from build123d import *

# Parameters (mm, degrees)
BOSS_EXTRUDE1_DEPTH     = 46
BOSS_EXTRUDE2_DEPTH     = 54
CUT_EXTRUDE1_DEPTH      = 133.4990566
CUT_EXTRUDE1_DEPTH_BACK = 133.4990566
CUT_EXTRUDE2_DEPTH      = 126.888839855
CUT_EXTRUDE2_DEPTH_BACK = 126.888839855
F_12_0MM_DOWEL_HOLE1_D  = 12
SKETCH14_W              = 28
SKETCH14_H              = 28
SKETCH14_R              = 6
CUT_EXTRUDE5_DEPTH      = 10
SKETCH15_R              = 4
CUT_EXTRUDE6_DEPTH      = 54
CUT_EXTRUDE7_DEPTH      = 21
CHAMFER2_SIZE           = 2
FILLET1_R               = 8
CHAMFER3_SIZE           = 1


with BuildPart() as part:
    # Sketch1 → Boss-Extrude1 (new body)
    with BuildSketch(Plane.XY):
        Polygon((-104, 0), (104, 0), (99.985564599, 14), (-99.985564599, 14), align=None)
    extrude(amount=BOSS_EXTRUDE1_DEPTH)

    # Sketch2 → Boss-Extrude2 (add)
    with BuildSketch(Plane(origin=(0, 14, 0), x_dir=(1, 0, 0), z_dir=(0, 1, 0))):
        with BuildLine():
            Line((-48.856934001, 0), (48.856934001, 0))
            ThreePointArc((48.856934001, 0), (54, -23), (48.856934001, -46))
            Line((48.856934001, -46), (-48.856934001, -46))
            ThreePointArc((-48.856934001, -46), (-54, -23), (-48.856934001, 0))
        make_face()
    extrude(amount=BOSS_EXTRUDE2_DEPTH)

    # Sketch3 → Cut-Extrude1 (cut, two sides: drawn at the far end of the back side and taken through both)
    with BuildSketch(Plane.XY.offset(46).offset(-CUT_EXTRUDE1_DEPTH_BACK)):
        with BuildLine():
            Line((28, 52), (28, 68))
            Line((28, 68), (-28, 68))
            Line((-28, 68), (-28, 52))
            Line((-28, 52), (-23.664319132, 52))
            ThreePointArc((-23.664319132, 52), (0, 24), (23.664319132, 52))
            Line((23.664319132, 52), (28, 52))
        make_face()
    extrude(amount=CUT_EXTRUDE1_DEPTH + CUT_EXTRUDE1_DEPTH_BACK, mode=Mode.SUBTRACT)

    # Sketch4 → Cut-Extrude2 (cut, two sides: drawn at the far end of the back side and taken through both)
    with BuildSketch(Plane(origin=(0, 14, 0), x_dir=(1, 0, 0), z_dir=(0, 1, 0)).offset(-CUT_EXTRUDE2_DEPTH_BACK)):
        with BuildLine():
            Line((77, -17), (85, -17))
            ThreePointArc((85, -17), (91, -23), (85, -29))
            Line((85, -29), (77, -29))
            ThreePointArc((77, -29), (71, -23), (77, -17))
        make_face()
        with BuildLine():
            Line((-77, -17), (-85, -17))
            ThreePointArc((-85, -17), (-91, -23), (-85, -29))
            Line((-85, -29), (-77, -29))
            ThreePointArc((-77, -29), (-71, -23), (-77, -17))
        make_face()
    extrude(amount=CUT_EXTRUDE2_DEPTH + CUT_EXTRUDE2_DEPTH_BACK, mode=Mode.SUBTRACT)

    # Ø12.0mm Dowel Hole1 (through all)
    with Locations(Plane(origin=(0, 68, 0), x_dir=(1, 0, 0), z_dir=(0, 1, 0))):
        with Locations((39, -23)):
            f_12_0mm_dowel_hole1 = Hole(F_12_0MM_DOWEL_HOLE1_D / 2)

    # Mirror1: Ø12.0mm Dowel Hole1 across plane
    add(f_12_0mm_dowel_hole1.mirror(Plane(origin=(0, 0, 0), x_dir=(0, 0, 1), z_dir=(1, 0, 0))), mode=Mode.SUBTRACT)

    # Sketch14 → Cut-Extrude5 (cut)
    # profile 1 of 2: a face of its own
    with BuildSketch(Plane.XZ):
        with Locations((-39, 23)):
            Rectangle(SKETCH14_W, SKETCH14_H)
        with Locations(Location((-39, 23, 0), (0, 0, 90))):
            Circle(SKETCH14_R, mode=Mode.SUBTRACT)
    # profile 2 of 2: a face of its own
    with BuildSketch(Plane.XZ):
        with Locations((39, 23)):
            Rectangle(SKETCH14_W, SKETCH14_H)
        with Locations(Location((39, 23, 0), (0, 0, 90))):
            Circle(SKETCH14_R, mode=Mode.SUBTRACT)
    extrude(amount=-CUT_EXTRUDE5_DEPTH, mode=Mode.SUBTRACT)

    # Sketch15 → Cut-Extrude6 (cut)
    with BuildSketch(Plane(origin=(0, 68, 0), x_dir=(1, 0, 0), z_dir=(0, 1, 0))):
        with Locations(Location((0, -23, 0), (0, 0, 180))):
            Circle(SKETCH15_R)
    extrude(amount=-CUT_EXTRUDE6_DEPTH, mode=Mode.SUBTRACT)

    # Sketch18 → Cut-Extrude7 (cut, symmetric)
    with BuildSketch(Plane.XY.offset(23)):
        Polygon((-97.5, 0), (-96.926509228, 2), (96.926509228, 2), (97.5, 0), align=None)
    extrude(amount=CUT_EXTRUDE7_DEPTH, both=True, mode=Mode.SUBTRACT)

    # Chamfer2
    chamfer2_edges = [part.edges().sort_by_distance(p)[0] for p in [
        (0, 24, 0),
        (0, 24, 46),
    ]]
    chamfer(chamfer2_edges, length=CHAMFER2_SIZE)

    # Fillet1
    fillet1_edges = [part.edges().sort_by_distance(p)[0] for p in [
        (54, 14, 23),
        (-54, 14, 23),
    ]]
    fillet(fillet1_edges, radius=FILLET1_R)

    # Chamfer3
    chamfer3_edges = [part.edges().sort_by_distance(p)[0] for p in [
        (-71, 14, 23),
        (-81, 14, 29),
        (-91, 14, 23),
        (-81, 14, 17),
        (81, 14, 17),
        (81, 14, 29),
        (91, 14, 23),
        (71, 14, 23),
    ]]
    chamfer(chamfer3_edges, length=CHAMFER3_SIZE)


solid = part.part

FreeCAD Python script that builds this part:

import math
import FreeCAD as App
import Part
import Sketcher
from FreeCAD import Vector
Q = App.Units.Quantity


def edges_at(feature, points):
    """Names of the edges that pass closest to the given points."""
    edges = feature.Shape.Edges
    near = lambda p: min(range(len(edges)), key=lambda i: edges[i].distToShape(Part.Vertex(*p))[0])
    return sorted({f"Edge{near(p) + 1}" for p in points})


def add_polygon(sketch, points):
    """Adds a closed chain of lines whose ends are joined by coincident constraints."""
    first, n = sketch.GeometryCount, len(points)
    for a, b in zip(points, points[1:] + points[:1]):
        sketch.addGeometry(Part.LineSegment(App.Vector(*a, 0), App.Vector(*b, 0)), False)
    for i in range(n):
        sketch.addConstraint(Sketcher.Constraint("Coincident", first + i, 2, first + (i + 1) % n, 1))

doc = App.newDocument("Part")
body = doc.addObject("PartDesign::Body", "Body")

# Sketch on XY plane
sketch1 = body.newObject("Sketcher::SketchObject", "Sketch")
sketch1.AttachmentSupport = (doc.getObject("XY_Plane"), [""])
sketch1.MapMode = "FlatFace"
add_polygon(sketch1, [(-104, 0), (104, 0), (100, 14), (-100, 14)])  # lines 0-3
sketch1.addConstraint([
    Sketcher.Constraint("Horizontal", 0),
    Sketcher.Constraint("Horizontal", 2),
    Sketcher.Constraint("Symmetric", 0, 2, 3, 2, -1, 1),
    Sketcher.Constraint("Equal", 1, 3),
    Sketcher.Constraint("DistanceX", 0, 1, 0, 2, Q("208 mm")),
    Sketcher.Constraint("Angle", 1, Q("106 deg")),
    Sketcher.Constraint("DistanceY", -1, 1, 1, 2, Q("14 mm")),
])
pad1 = body.newObject("PartDesign::Pad", "Pad")
pad1.Profile = sketch1
pad1.Length = 46

# Sketch on XZ plane
sketch2 = body.newObject("Sketcher::SketchObject", "Sketch001")
sketch2.AttachmentSupport = (doc.getObject("XZ_Plane"), [""])
sketch2.MapMode = "FlatFace"
sketch2.AttachmentOffset = App.Placement(Vector(0, 0, -14), App.Rotation())
sketch2.addGeometry([
    Part.LineSegment(Vector(49, 0, 0), Vector(-49, 0, 0)),
    Part.ArcOfCircle(Part.Circle(Vector(0, 23, 0), Vector(0, 0, 1), 54), math.radians(155), math.radians(205)),
    Part.LineSegment(Vector(-49, 46, 0), Vector(49, 46, 0)),
    Part.ArcOfCircle(Part.Circle(Vector(0, 23, 0), Vector(0, 0, 1), 54), math.radians(-25), math.radians(25)),
], False)
sketch2.addConstraint([
    Sketcher.Constraint("Coincident", 0, 2, 1, 2),
    Sketcher.Constraint("Coincident", 1, 1, 2, 1),
    Sketcher.Constraint("Coincident", 2, 2, 3, 2),
    Sketcher.Constraint("Coincident", 3, 1, 0, 1),
    Sketcher.Constraint("Horizontal", 0),
    Sketcher.Constraint("Horizontal", 2),
    Sketcher.Constraint("Coincident", 3, 3, 1, 3),
    Sketcher.Constraint("Equal", 1, 3),
    Sketcher.Constraint("Symmetric", 0, 2, 3, 1, -1, 1),
    Sketcher.Constraint("Vertical", 0, 2, 1, 1),
    Sketcher.Constraint("Radius", 1, Q("54 mm")),
    Sketcher.Constraint("DistanceY", -1, 1, 1, 3, Q("23 mm")),
])
pad2 = body.newObject("PartDesign::Pad", "Pad001")
pad2.Profile = sketch2
pad2.Length = 54
pad2.Reversed = True

# Sketch on XY plane
sketch3 = body.newObject("Sketcher::SketchObject", "Sketch002")
sketch3.AttachmentSupport = (doc.getObject("XY_Plane"), [""])
sketch3.MapMode = "FlatFace"
sketch3.AttachmentOffset = App.Placement(Vector(0, 0, 46), App.Rotation())
sketch3.addGeometry([
    Part.LineSegment(Vector(28, 52, 0), Vector(28, 68, 0)),  # 0
    Part.LineSegment(Vector(28, 68, 0), Vector(-28, 68, 0)),  # 1
    Part.LineSegment(Vector(-28, 68, 0), Vector(-28, 52, 0)),  # 2
    Part.LineSegment(Vector(-28, 52, 0), Vector(-23.7, 52, 0)),  # 3
    Part.ArcOfCircle(Part.Circle(Vector(0, 48, 0), Vector(0, 0, 1), 24), math.radians(170), math.radians(370)),  # 4
    Part.LineSegment(Vector(23.7, 52, 0), Vector(28, 52, 0)),  # 5
], False)
sketch3.addConstraint([
    Sketcher.Constraint("Coincident", 0, 2, 1, 1),
    Sketcher.Constraint("Coincident", 1, 2, 2, 1),
    Sketcher.Constraint("Coincident", 2, 2, 3, 1),
    Sketcher.Constraint("Coincident", 3, 2, 4, 1),
    Sketcher.Constraint("Coincident", 4, 2, 5, 1),
    Sketcher.Constraint("Coincident", 5, 2, 0, 1),
    Sketcher.Constraint("Vertical", 0),
    Sketcher.Constraint("Horizontal", 1),
    Sketcher.Constraint("Vertical", 2),
    Sketcher.Constraint("Horizontal", 3),
    Sketcher.Constraint("Horizontal", 5),
    Sketcher.Constraint("Symmetric", 3, 2, 4, 2, -2),
    Sketcher.Constraint("Equal", 3, 5),
    Sketcher.Constraint("Radius", 4, Q("24 mm")),
    Sketcher.Constraint("DistanceX", 1, 2, 1, 1, Q("56 mm")),
    Sketcher.Constraint("DistanceY", 0, 1, 0, 2, Q("16 mm")),
    Sketcher.Constraint("DistanceY", -1, 1, 4, 3, Q("48 mm")),
    Sketcher.Constraint("DistanceY", -1, 1, 0, 2, Q("68 mm")),
])
pocket1 = body.newObject("PartDesign::Pocket", "Pocket")
pocket1.Profile = sketch3
pocket1.Type = "ThroughAll"
pocket1.Midplane = True

# Sketch on XZ plane
sketch4 = body.newObject("Sketcher::SketchObject", "Sketch003")
sketch4.AttachmentSupport = (doc.getObject("XZ_Plane"), [""])
sketch4.MapMode = "FlatFace"
sketch4.AttachmentOffset = App.Placement(Vector(0, 0, -14), App.Rotation())
sketch4.addGeometry([
    Part.LineSegment(Vector(85, 17, 0), Vector(77, 17, 0)),  # 0
    Part.ArcOfCircle(Part.Circle(Vector(77, 23, 0), Vector(0, 0, 1), 6), math.radians(90), math.radians(270)),  # 1
    Part.LineSegment(Vector(77, 29, 0), Vector(85, 29, 0)),  # 2
    Part.ArcOfCircle(Part.Circle(Vector(85, 23, 0), Vector(0, 0, 1), 6), math.radians(-90), math.radians(90)),  # 3
    Part.LineSegment(Vector(-77, 17, 0), Vector(-85, 17, 0)),  # 4
    Part.ArcOfCircle(Part.Circle(Vector(-85, 23, 0), Vector(0, 0, 1), 6), math.radians(90), math.radians(270)),  # 5
    Part.LineSegment(Vector(-85, 29, 0), Vector(-77, 29, 0)),  # 6
    Part.ArcOfCircle(Part.Circle(Vector(-77, 23, 0), Vector(0, 0, 1), 6), math.radians(-90), math.radians(90)),  # 7
], False)
sketch4.addConstraint([
    Sketcher.Constraint("Tangent", 0, 2, 1, 2),
    Sketcher.Constraint("Tangent", 1, 1, 2, 1),
    Sketcher.Constraint("Tangent", 2, 2, 3, 2),
    Sketcher.Constraint("Tangent", 3, 1, 0, 1),
    Sketcher.Constraint("Tangent", 4, 2, 5, 2),
    Sketcher.Constraint("Tangent", 5, 1, 6, 1),
    Sketcher.Constraint("Tangent", 6, 2, 7, 2),
    Sketcher.Constraint("Tangent", 7, 1, 4, 1),
    Sketcher.Constraint("Horizontal", 0),
    Sketcher.Constraint("Horizontal", 2),
    Sketcher.Constraint("Horizontal", 4),
    Sketcher.Constraint("Horizontal", 6),
    Sketcher.Constraint("Equal", 3, 5),
    Sketcher.Constraint("Symmetric", 3, 3, 5, 3, -2),
    Sketcher.Constraint("Equal", 2, 4),
    Sketcher.Constraint("Radius", 1, Q("6 mm")),
    Sketcher.Constraint("DistanceX", 0, 2, 0, 1, Q("8 mm")),
    Sketcher.Constraint("DistanceX", -1, 1, 1, 3, Q("77 mm")),
    Sketcher.Constraint("DistanceY", -1, 1, 1, 3, Q("23 mm")),
])
pocket2 = body.newObject("PartDesign::Pocket", "Pocket001")
pocket2.Profile = sketch4
pocket2.Type = "ThroughAll"
pocket2.Midplane = True

# Sketch on XZ plane
sketch5 = body.newObject("Sketcher::SketchObject", "Sketch004")
sketch5.AttachmentSupport = (doc.getObject("XZ_Plane"), [""])
sketch5.MapMode = "FlatFace"
sketch5.AttachmentOffset = App.Placement(Vector(0, 0, -68), App.Rotation())
sketch5.addGeometry(Part.Circle(Vector(39, 23, 0), Vector(0, 0, 1), 6), False)
sketch5.addConstraint([
    Sketcher.Constraint("Diameter", 0, Q("12 mm")),
    Sketcher.Constraint("DistanceX", -1, 1, 0, 3, Q("39 mm")),
    Sketcher.Constraint("DistanceY", -1, 1, 0, 3, Q("23 mm")),
])
doc.recompute()
hole = body.newObject("PartDesign::Hole", "Hole")
hole.Profile = sketch5
hole.ThreadType = "None"
hole.Diameter = 12
hole.DepthType = "ThroughAll"
hole.Reversed = True
doc.recompute()

mirrored = body.newObject("PartDesign::Mirrored", "Mirrored")
mirrored.Originals = [hole]
mirrored.MirrorPlane = (doc.getObject("YZ_Plane"), [""])
body.Tip = mirrored

# Sketch on XZ plane
sketch6 = body.newObject("Sketcher::SketchObject", "Sketch005")
sketch6.AttachmentSupport = (doc.getObject("XZ_Plane"), [""])
sketch6.MapMode = "FlatFace"
add_polygon(sketch6, [(-53, 37), (-53, 9), (-25, 9), (-25, 37)])  # lines 0-3
sketch6.addGeometry(Part.Circle(Vector(-39, 23, 0), Vector(0, 0, 1), 6), False)  # 4
add_polygon(sketch6, [(25, 37), (25, 9), (53, 9), (53, 37)])  # lines 5-8
sketch6.addGeometry(Part.Circle(Vector(39, 23, 0), Vector(0, 0, 1), 6), False)  # 9
sketch6.addConstraint([
    Sketcher.Constraint("Vertical", 0),
    Sketcher.Constraint("Horizontal", 1),
    Sketcher.Constraint("Vertical", 2),
    Sketcher.Constraint("Horizontal", 3),
    Sketcher.Constraint("Vertical", 5),
    Sketcher.Constraint("Horizontal", 6),
    Sketcher.Constraint("Vertical", 7),
    Sketcher.Constraint("Horizontal", 8),
    Sketcher.Constraint("Equal", 4, 9),
    Sketcher.Constraint("Symmetric", 4, 3, 9, 3, -2),
    Sketcher.Constraint("Symmetric", 1, 2, 5, 2, -2),
    Sketcher.Constraint("Symmetric", 3, 2, 7, 2, -2),
    Sketcher.Constraint("Equal", 8, 0),
    Sketcher.Constraint("Diameter", 4, Q("12 mm")),
    Sketcher.Constraint("DistanceX", 1, 1, 1, 2, Q("28 mm")),
    Sketcher.Constraint("DistanceX", 4, 3, -1, 1, Q("39 mm")),
    Sketcher.Constraint("DistanceY", -1, 1, 4, 3, Q("23 mm")),
    Sketcher.Constraint("DistanceX", 0, 2, -1, 1, Q("53 mm")),
    Sketcher.Constraint("DistanceY", -1, 1, 0, 2, Q("9 mm")),
])
pocket3 = body.newObject("PartDesign::Pocket", "Pocket002")
pocket3.Profile = sketch6
pocket3.Length = 10

# Sketch on XZ plane
sketch7 = body.newObject("Sketcher::SketchObject", "Sketch006")
sketch7.AttachmentSupport = (doc.getObject("XZ_Plane"), [""])
sketch7.MapMode = "FlatFace"
sketch7.AttachmentOffset = App.Placement(Vector(0, 0, -68), App.Rotation())
sketch7.addGeometry(Part.Circle(Vector(0, 23, 0), Vector(0, 0, 1), 4), False)
sketch7.addConstraint([
    Sketcher.Constraint("PointOnObject", 0, 3, -2),
    Sketcher.Constraint("Diameter", 0, Q("8 mm")),
    Sketcher.Constraint("DistanceY", -1, 1, 0, 3, Q("23 mm")),
])
pocket4 = body.newObject("PartDesign::Pocket", "Pocket003")
pocket4.Profile = sketch7
pocket4.Length = 54
pocket4.Reversed = True

# Sketch on XY plane
sketch8 = body.newObject("Sketcher::SketchObject", "Sketch007")
sketch8.AttachmentSupport = (doc.getObject("XY_Plane"), [""])
sketch8.MapMode = "FlatFace"
sketch8.AttachmentOffset = App.Placement(Vector(0, 0, 23), App.Rotation())
add_polygon(sketch8, [(-96.9, 2), (-97.5, 0), (97.5, 0), (96.9, 2)])  # lines 0-3
sketch8.addConstraint([
    Sketcher.Constraint("Horizontal", 1),
    Sketcher.Constraint("Horizontal", 3),
    Sketcher.Constraint("Symmetric", 0, 2, 1, 2, -1, 1),
    Sketcher.Constraint("Equal", 0, 2),
    Sketcher.Constraint("DistanceX", 1, 1, 1, 2, Q("195 mm")),
    Sketcher.Constraint("Angle", 0, Q("-106 deg")),
    Sketcher.Constraint("DistanceY", -1, 1, 2, 2, Q("2 mm")),
])
pocket5 = body.newObject("PartDesign::Pocket", "Pocket004")
pocket5.Profile = sketch8
pocket5.Length = 42
pocket5.Midplane = True
doc.recompute()

chamfer = body.newObject("PartDesign::Chamfer", "Chamfer")
chamfer.Base = (pocket5, edges_at(pocket5, [(0, 24, 0), (0, 24, 46)]))
chamfer.Size = 2
doc.recompute()

fillet = body.newObject("PartDesign::Fillet", "Fillet")
fillet.Base = (chamfer, edges_at(chamfer, [(54, 14, 23), (-54, 14, 23)]))
fillet.Radius = 8
doc.recompute()

chamfer2 = body.newObject("PartDesign::Chamfer", "Chamfer001")
chamfer2.Base = (fillet, edges_at(fillet, [
    (-71, 14, 23),
    (-81, 14, 29),
    (-91, 14, 23),
    (-81, 14, 17),
    (81, 14, 17),
    (81, 14, 29),
    (91, 14, 23),
    (71, 14, 23),
]))
chamfer2.Size = 1

doc.recompute()
